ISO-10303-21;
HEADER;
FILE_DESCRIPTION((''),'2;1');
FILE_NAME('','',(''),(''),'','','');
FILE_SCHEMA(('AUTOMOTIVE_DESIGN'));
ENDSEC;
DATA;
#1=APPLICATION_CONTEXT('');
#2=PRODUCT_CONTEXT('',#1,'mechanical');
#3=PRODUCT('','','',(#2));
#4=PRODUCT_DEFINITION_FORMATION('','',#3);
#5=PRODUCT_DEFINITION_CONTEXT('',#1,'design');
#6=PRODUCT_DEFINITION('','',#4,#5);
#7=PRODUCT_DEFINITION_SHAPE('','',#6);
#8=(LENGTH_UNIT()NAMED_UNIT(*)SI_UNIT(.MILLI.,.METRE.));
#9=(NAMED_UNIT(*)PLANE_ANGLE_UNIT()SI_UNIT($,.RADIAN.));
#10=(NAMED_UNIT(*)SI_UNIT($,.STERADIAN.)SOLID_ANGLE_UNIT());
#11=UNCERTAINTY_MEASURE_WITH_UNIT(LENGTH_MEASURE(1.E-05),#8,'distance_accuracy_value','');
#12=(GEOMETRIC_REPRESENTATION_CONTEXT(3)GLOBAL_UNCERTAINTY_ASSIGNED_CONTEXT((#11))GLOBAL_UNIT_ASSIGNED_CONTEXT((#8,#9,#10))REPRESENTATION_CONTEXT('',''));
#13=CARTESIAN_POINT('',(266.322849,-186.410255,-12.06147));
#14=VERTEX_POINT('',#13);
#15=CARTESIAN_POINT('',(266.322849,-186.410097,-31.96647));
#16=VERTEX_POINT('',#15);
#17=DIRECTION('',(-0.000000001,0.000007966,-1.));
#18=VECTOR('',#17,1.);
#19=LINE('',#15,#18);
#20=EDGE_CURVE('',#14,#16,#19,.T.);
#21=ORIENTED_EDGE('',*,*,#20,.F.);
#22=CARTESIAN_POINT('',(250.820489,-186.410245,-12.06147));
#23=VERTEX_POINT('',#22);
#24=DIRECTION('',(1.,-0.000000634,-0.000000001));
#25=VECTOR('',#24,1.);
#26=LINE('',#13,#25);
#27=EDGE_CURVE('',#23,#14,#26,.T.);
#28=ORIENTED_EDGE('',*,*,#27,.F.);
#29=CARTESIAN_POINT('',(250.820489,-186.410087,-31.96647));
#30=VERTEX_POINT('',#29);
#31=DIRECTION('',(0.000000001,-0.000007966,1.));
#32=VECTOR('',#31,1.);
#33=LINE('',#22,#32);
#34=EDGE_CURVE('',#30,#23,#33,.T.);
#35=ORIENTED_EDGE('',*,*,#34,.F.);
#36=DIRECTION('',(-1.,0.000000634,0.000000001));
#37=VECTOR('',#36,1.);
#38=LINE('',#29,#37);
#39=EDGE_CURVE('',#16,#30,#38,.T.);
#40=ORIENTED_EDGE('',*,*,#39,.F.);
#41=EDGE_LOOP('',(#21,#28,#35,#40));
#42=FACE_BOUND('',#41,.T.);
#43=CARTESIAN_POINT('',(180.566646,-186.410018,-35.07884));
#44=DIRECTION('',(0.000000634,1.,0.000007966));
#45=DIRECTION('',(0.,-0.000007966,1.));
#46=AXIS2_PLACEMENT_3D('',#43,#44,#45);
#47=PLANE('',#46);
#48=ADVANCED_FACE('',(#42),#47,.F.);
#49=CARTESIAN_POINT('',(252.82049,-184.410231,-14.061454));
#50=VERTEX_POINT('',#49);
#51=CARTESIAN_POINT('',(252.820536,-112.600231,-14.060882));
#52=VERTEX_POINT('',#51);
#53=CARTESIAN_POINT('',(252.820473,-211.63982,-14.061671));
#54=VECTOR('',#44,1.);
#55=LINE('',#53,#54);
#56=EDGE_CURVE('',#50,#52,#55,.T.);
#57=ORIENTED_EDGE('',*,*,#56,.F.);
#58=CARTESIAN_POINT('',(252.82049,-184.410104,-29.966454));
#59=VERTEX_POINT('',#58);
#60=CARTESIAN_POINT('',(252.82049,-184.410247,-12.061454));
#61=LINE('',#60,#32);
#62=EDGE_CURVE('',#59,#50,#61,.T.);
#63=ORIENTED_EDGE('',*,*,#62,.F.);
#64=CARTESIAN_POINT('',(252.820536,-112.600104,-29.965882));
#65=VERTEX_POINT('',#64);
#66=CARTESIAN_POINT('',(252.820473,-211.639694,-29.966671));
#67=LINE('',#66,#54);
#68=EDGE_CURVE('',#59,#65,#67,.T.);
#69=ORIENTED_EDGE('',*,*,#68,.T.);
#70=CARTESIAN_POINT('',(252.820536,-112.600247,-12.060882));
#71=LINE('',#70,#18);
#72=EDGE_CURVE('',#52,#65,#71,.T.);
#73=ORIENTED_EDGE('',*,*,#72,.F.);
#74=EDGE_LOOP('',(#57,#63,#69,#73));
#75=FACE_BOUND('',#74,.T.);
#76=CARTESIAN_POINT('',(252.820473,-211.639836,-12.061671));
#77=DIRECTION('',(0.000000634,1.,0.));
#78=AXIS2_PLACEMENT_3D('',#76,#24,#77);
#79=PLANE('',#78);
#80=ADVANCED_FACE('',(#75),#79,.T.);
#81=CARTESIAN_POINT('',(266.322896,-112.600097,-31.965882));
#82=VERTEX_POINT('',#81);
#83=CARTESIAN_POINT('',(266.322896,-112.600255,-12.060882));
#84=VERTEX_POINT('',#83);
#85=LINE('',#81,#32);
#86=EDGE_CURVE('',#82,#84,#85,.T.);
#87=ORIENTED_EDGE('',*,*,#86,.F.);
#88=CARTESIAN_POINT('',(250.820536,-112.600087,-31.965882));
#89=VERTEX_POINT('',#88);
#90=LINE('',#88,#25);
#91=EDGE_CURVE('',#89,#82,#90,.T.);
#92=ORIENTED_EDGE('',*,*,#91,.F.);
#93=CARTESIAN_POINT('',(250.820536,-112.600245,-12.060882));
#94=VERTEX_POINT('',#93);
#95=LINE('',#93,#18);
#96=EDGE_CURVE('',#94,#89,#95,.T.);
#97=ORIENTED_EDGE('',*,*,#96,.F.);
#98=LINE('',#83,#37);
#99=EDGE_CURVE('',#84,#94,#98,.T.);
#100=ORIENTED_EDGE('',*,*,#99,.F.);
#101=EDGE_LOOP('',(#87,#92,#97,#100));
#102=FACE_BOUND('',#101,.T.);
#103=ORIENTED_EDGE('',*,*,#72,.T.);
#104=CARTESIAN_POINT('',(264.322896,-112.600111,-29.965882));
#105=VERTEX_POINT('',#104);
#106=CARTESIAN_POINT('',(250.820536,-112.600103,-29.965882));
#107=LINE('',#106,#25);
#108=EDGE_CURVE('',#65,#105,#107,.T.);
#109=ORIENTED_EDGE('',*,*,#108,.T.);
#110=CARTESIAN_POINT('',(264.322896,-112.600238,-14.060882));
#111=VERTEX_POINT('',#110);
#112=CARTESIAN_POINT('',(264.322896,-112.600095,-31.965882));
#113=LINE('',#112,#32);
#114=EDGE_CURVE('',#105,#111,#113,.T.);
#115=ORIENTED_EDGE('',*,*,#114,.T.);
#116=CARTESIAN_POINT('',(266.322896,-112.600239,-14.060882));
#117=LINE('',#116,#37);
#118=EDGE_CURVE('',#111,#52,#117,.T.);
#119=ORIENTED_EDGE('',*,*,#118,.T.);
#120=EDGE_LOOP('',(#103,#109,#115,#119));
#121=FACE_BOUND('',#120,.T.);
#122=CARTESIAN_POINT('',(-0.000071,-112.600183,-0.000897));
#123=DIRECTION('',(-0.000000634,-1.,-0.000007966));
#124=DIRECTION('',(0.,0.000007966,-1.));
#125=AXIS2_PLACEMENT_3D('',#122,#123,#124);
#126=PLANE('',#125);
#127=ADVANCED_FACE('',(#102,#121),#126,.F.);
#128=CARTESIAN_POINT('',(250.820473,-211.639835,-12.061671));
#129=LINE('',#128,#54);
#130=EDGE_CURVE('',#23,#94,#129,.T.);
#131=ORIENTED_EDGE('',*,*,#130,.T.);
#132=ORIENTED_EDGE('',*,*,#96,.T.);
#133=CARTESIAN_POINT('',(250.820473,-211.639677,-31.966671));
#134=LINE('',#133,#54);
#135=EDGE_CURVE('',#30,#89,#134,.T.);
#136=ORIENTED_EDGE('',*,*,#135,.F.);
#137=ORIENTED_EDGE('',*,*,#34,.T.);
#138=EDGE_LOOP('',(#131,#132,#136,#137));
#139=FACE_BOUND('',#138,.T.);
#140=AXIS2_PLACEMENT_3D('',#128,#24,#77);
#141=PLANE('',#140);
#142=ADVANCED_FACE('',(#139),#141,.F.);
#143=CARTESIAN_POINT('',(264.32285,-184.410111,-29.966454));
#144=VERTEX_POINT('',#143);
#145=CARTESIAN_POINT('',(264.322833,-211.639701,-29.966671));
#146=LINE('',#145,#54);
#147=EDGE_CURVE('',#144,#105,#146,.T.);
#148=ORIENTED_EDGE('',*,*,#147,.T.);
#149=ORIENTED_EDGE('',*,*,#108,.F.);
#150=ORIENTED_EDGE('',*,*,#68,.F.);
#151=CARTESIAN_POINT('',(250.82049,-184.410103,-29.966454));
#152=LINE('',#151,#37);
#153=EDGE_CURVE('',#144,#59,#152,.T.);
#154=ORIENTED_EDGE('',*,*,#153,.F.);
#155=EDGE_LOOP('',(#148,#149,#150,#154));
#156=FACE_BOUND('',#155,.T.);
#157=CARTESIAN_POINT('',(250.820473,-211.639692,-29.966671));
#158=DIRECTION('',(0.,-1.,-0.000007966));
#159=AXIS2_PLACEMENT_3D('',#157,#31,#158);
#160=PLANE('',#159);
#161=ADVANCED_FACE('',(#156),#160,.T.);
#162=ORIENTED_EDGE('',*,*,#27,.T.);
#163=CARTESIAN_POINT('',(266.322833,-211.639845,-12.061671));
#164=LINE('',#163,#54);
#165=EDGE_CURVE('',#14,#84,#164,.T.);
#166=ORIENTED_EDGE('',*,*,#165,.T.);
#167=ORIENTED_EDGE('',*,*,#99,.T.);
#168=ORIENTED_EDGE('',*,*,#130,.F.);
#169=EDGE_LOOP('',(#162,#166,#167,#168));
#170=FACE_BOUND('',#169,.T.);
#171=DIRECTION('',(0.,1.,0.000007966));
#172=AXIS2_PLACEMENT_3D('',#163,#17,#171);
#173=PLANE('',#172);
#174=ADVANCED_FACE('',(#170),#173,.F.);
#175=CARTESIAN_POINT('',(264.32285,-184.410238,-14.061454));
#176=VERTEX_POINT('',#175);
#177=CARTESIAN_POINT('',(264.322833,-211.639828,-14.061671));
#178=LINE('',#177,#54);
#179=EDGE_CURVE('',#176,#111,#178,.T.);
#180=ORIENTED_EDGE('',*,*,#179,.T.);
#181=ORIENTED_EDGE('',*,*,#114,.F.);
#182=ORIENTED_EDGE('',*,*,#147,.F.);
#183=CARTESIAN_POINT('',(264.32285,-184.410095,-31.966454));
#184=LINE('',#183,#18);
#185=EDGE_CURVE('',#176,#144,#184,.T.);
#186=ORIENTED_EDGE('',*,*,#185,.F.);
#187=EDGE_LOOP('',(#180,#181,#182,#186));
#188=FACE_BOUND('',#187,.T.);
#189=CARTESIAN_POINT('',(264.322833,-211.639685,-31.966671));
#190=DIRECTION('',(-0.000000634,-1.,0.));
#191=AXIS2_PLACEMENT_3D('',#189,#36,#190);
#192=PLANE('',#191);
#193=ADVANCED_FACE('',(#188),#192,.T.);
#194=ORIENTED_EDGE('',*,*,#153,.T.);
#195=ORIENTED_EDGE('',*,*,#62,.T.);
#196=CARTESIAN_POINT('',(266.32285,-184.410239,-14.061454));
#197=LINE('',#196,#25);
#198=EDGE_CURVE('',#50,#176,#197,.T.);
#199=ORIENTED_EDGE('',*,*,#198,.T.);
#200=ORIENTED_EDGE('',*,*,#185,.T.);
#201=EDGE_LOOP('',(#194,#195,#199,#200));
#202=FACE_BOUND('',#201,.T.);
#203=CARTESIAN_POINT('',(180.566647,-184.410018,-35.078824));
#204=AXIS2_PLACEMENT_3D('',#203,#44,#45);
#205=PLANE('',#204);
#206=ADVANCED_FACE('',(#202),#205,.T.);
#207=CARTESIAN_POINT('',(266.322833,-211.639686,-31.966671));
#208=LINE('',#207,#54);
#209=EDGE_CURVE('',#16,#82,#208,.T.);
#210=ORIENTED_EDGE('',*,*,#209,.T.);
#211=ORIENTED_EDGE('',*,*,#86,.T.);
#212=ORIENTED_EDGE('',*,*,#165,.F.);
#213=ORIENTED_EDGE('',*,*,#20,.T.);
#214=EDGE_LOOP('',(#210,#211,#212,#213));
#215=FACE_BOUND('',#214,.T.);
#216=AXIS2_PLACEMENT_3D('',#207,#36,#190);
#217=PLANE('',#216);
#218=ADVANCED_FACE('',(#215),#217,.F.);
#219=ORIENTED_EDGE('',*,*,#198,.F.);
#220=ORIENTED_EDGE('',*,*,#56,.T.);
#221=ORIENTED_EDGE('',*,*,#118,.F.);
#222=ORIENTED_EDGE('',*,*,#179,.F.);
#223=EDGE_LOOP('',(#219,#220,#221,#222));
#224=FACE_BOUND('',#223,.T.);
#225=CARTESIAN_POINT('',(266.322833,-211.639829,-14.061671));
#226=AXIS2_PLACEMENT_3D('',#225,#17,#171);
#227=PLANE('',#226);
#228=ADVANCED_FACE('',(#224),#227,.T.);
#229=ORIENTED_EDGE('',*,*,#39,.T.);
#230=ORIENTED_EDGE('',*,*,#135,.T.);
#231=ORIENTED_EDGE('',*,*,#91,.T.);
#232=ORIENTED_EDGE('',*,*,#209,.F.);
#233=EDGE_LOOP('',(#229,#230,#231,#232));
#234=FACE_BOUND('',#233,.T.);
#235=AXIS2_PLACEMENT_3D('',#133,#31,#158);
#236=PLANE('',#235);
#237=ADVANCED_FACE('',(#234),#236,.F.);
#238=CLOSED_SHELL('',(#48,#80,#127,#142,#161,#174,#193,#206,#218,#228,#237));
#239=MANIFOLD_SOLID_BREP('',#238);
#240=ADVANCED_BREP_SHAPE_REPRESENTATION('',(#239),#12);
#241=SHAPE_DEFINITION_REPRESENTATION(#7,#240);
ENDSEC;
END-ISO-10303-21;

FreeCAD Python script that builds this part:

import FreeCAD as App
import Part
import Sketcher

V = App.Vector
Q = App.Units.Quantity


def faces_at(feature, points):
    """Names of the faces that lie closest to the given points."""
    faces = feature.Shape.Faces
    near = lambda p: min(range(len(faces)), key=lambda i: faces[i].distToShape(Part.Vertex(*p))[0])
    return sorted({f"Face{near(p) + 1}" for p in points})

doc = App.newDocument("Part")
body = doc.addObject("PartDesign::Body", "Body")

sketch1 = body.newObject("Sketcher::SketchObject", "Sketch")
sketch1.AttachmentSupport = (doc.getObject("XZ_Plane"), [""])
sketch1.MapMode = "FlatFace"
sketch1.AttachmentOffset = App.Placement(V(0, 0, 112.600183), App.Rotation())
sketch1.addGeometry([
    Part.LineSegment(V(266, -12, 0), V(251, -12, 0)),
    Part.LineSegment(V(251, -12, 0), V(251, -32, 0)),
    Part.LineSegment(V(251, -32, 0), V(266, -32, 0)),
    Part.LineSegment(V(266, -32, 0), V(266, -12, 0)),
], False)
sketch1.addConstraint([
    Sketcher.Constraint("Coincident", 0, 2, 1, 1),
    Sketcher.Constraint("Coincident", 1, 2, 2, 1),
    Sketcher.Constraint("Coincident", 2, 2, 3, 1),
    Sketcher.Constraint("Coincident", 3, 2, 0, 1),
    Sketcher.Constraint("Horizontal", 0),
    Sketcher.Constraint("Vertical", 1),
    Sketcher.Constraint("Horizontal", 2),
    Sketcher.Constraint("Vertical", 3),
    Sketcher.Constraint("DistanceY", 1, 2, 1, 1, Q("19.905 mm")),
    Sketcher.Constraint("DistanceX", 0, 2, 0, 1, Q("15.50236 mm")),
    Sketcher.Constraint("DistanceY", 0, 2, -1, 1, Q("12.060882 mm")),
    Sketcher.Constraint("DistanceX", -1, 1, 0, 2, Q("250.820536 mm")),
])
pad1 = body.newObject("PartDesign::Pad", "Pad")
pad1.Profile = sketch1
pad1.Length = 73.81
doc.recompute()

thickness = body.newObject("PartDesign::Thickness", "Thickness")
thickness.Base = (pad1, faces_at(pad1, [(258.572, -112.6, -22.013)]))
thickness.Value = 2
thickness.Reversed = True
thickness.Join = "Intersection"

doc.recompute()
